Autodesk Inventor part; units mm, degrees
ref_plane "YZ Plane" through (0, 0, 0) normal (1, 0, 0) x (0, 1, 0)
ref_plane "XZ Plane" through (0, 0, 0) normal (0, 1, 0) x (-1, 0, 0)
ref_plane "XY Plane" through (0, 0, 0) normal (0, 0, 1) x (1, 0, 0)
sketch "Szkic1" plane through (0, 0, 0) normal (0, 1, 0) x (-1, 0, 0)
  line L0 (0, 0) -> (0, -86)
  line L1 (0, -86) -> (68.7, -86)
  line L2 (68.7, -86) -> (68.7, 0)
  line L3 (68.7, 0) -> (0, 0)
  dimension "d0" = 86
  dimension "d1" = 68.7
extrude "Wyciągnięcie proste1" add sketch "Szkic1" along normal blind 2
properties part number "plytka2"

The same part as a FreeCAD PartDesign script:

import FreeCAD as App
import Part
import Sketcher


def add_polygon(sketch, points):
    """Adds a closed chain of lines whose ends are joined by coincident constraints."""
    first, n = sketch.GeometryCount, len(points)
    for a, b in zip(points, points[1:] + points[:1]):
        sketch.addGeometry(Part.LineSegment(App.Vector(*a, 0), App.Vector(*b, 0)), False)
    for i in range(n):
        sketch.addConstraint(Sketcher.Constraint("Coincident", first + i, 2, first + (i + 1) % n, 1))

doc = App.newDocument("Part")
body = doc.addObject("PartDesign::Body", "Body")

# Sketch on XZ plane
sketch1 = doc.addObject("Sketcher::SketchObject", "Sketch")
body.addObject(sketch1)
sketch1.AttachmentSupport = (doc.XZ_Plane, [""])
sketch1.MapMode = "FlatFace"
add_polygon(sketch1, [(-69, 0), (0, 0), (0, -86), (-69, -86)])  # lines 0-3
sketch1.addConstraint(Sketcher.Constraint("Horizontal", 0))
sketch1.addConstraint(Sketcher.Constraint("Vertical", 1))
sketch1.addConstraint(Sketcher.Constraint("Horizontal", 2))
sketch1.addConstraint(Sketcher.Constraint("Vertical", 3))
sketch1.addConstraint(Sketcher.Constraint("Coincident", 0, 2, -1, 1))
sketch1.addConstraint(Sketcher.Constraint("DistanceY", 1, 2, 1, 1, 86.0))
sketch1.addConstraint(Sketcher.Constraint("DistanceX", 0, 1, 0, 2, 68.7))
pad1 = doc.addObject("PartDesign::Pad", "Pad")
body.addObject(pad1)
pad1.Profile = sketch1
pad1.Length = 2
pad1.Reversed = True

doc.recompute()
